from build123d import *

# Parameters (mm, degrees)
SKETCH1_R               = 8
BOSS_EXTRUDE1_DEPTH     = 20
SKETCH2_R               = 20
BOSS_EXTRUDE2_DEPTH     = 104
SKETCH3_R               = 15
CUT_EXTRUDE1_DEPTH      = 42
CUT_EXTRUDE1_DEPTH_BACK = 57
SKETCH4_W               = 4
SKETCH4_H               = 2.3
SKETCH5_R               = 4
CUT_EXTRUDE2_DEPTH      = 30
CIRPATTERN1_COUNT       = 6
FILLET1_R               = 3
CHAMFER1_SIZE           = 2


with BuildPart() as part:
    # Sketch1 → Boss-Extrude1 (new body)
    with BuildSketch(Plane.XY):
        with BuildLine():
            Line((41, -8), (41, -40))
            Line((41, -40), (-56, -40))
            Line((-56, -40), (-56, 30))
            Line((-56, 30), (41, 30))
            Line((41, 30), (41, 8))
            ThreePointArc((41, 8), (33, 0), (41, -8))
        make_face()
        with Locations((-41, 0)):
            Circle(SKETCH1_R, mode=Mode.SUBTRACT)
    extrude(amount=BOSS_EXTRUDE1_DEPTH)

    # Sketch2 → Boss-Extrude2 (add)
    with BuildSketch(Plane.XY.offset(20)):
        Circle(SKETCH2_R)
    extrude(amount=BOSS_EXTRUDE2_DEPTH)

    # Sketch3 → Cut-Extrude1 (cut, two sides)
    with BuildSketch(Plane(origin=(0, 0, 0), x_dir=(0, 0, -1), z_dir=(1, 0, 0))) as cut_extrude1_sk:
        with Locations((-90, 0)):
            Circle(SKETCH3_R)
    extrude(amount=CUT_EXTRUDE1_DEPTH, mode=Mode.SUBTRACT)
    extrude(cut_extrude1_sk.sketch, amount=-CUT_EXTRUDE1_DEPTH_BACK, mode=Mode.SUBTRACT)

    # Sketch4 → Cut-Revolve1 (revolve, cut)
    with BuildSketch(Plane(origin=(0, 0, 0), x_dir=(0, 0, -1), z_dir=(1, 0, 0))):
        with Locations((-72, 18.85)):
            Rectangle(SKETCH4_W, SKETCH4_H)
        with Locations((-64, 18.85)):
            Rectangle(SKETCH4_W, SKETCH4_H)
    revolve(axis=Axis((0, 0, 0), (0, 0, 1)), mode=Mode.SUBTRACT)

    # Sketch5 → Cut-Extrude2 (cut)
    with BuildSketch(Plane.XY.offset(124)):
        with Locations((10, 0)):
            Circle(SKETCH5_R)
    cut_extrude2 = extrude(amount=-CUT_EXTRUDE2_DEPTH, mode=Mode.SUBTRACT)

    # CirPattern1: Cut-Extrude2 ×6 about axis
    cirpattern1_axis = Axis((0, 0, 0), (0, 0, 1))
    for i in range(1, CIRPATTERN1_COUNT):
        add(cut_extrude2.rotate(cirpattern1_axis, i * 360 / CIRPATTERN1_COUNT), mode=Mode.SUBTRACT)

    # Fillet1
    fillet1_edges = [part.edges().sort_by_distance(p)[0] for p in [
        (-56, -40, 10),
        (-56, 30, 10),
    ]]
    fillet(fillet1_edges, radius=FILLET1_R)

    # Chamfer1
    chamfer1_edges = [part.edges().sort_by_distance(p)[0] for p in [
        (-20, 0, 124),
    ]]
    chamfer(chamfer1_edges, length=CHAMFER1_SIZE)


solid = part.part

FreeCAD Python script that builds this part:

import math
import FreeCAD as App
import Part
import Sketcher

V = App.Vector


def edges_at(feature, points):
    """Names of the edges that pass closest to the given points."""
    edges = feature.Shape.Edges
    near = lambda p: min(range(len(edges)), key=lambda i: edges[i].distToShape(Part.Vertex(*p))[0])
    return sorted({f"Edge{near(p) + 1}" for p in points})


def add_polygon(sketch, points):
    """Adds a closed chain of lines whose ends are joined by coincident constraints."""
    first, n = sketch.GeometryCount, len(points)
    for a, b in zip(points, points[1:] + points[:1]):
        sketch.addGeometry(Part.LineSegment(App.Vector(*a, 0), App.Vector(*b, 0)), False)
    for i in range(n):
        sketch.addConstraint(Sketcher.Constraint("Coincident", first + i, 2, first + (i + 1) % n, 1))

doc = App.newDocument("Part")
params = doc.addObject("Spreadsheet::Sheet", "Params")
for row, (alias, value) in enumerate([
    ("sketch1_diameter", "16 mm"),
    ("sketch1_width", "97 mm"),
    ("sketch1_height", "32 mm"),
    ("sketch1_height2", "22 mm"),
    ("pad1_length", "20 mm"),
    ("sketch2_diameter", "40 mm"),
    ("pad2_length", "104 mm"),
    ("sketch3_diameter", "30 mm"),
    ("sketch4_height", "4 mm"),
    ("sketch4_width", "2.3 mm"),
    ("groove_angle", "360 deg"),
    ("sketch5_diameter", "8 mm"),
    ("pocket2_length", "30 mm"),
    ("fillet_radius", "3 mm"),
    ("chamfer_size", "2 mm"),
], start=1):
    params.set(f"A{row}", alias)
    params.set(f"B{row}", "=" + value)
    params.setAlias(f"B{row}", alias)

body = doc.addObject("PartDesign::Body", "Body")

sketch1 = body.newObject("Sketcher::SketchObject", "Sketch")
sketch1.AttachmentSupport = (doc.getObject("XY_Plane"), [""])
sketch1.MapMode = "FlatFace"
sketch1.addGeometry([
    Part.LineSegment(V(41, -40, 0), V(41, -8, 0)),
    Part.ArcOfCircle(Part.Circle(V(41, 0, 0), V(0, 0, 1), 8), math.radians(90), math.radians(270)),
    Part.LineSegment(V(41, 8, 0), V(41, 30, 0)),
    Part.LineSegment(V(41, 30, 0), V(-56, 30, 0)),
    Part.LineSegment(V(-56, 30, 0), V(-56, -40, 0)),
    Part.LineSegment(V(-56, -40, 0), V(41, -40, 0)),
    Part.Circle(V(-41, 0, 0), V(0, 0, 1), 8),
], False)
sketch1.addConstraint([
    Sketcher.Constraint("Coincident", 0, 2, 1, 2),
    Sketcher.Constraint("Coincident", 1, 1, 2, 1),
    Sketcher.Constraint("Coincident", 2, 2, 3, 1),
    Sketcher.Constraint("Coincident", 3, 2, 4, 1),
    Sketcher.Constraint("Coincident", 4, 2, 5, 1),
    Sketcher.Constraint("Coincident", 5, 2, 0, 1),
    Sketcher.Constraint("Vertical", 0),
    Sketcher.Constraint("Vertical", 2),
    Sketcher.Constraint("Horizontal", 3),
    Sketcher.Constraint("Vertical", 4),
    Sketcher.Constraint("Horizontal", 5),
    Sketcher.Constraint("Equal", 1, 6),
    Sketcher.Constraint("Symmetric", 1, 3, 6, 3, -1, 1),
    Sketcher.Constraint("Symmetric", 0, 2, 1, 1, -1),
    Sketcher.Constraint("Vertical", 1, 3, 0, 2),
    Sketcher.Constraint("Diameter", 6, 16.0),
    Sketcher.Constraint("DistanceX", 3, 2, 3, 1, 97.0),
    Sketcher.Constraint("DistanceY", 0, 1, 0, 2, 32.0),
    Sketcher.Constraint("DistanceY", 2, 1, 2, 2, 22.0),
    Sketcher.Constraint("DistanceX", -1, 1, 1, 3, 41.0),
])
sketch1.setExpression("Constraints[15]", "Params.sketch1_diameter")
sketch1.setExpression("Constraints[16]", "Params.sketch1_width")
sketch1.setExpression("Constraints[17]", "Params.sketch1_height")
sketch1.setExpression("Constraints[18]", "Params.sketch1_height2")
pad1 = body.newObject("PartDesign::Pad", "Pad")
pad1.Profile = sketch1
pad1.setExpression("Length", "Params.pad1_length")

sketch2 = body.newObject("Sketcher::SketchObject", "Sketch001")
sketch2.AttachmentSupport = (doc.getObject("XY_Plane"), [""])
sketch2.MapMode = "FlatFace"
sketch2.AttachmentOffset = App.Placement(V(0, 0, 20), App.Rotation())
sketch2.addGeometry(Part.Circle(V(0, 0, 0), V(0, 0, 1), 20), False)
sketch2.addConstraint([
    Sketcher.Constraint("Coincident", 0, 3, -1, 1),
    Sketcher.Constraint("Diameter", 0, 40.0),
])
sketch2.setExpression("Constraints[1]", "Params.sketch2_diameter")
pad2 = body.newObject("PartDesign::Pad", "Pad001")
pad2.Profile = sketch2
pad2.setExpression("Length", "Params.pad2_length")

sketch3 = body.newObject("Sketcher::SketchObject", "Sketch002")
sketch3.AttachmentSupport = (doc.getObject("YZ_Plane"), [""])
sketch3.MapMode = "FlatFace"
sketch3.addGeometry(Part.Circle(V(0, 90, 0), V(0, 0, 1), 15), False)
sketch3.addConstraint([
    Sketcher.Constraint("PointOnObject", 0, 3, -2),
    Sketcher.Constraint("Diameter", 0, 30.0),
    Sketcher.Constraint("DistanceY", -1, 1, 0, 3, 90.0),
])
sketch3.setExpression("Constraints[1]", "Params.sketch3_diameter")
pocket1 = body.newObject("PartDesign::Pocket", "Pocket")
pocket1.Profile = sketch3
pocket1.Type = "ThroughAll"
pocket1.Midplane = True

sketch4 = body.newObject("Sketcher::SketchObject", "Sketch003")
sketch4.AttachmentSupport = (doc.getObject("YZ_Plane"), [""])
sketch4.MapMode = "FlatFace"
add_polygon(sketch4, [(20, 74), (17.7, 74), (17.7, 70), (20, 70)])
add_polygon(sketch4, [(20, 66), (17.7, 66), (17.7, 62), (20, 62)])
sketch4.addConstraint([
    Sketcher.Constraint("Horizontal", 0),
    Sketcher.Constraint("Vertical", 1),
    Sketcher.Constraint("Horizontal", 2),
    Sketcher.Constraint("Vertical", 3),
    Sketcher.Constraint("Horizontal", 4),
    Sketcher.Constraint("Vertical", 5),
    Sketcher.Constraint("Horizontal", 6),
    Sketcher.Constraint("Vertical", 7),
    Sketcher.Constraint("Vertical", 1, 2, 4, 2),
    Sketcher.Constraint("Vertical", 3, 2, 6, 2),
    Sketcher.Constraint("Equal", 3, 5),
    Sketcher.Constraint("DistanceY", 1, 2, 1, 1, 4.0),
    Sketcher.Constraint("DistanceX", 0, 2, 0, 1, 2.3),
    Sketcher.Constraint("DistanceY", -1, 1, 0, 2, 74.0),
    Sketcher.Constraint("DistanceX", -1, 1, 2, 2, 20.0),
    Sketcher.Constraint("DistanceY", -1, 1, 4, 2, 66.0),
])
sketch4.setExpression("Constraints[19]", "Params.sketch4_height")
sketch4.setExpression("Constraints[20]", "Params.sketch4_width")
groove = body.newObject("PartDesign::Groove", "Groove")
groove.Profile = sketch4
groove.ReferenceAxis = (sketch4, ["V_Axis"])
groove.setExpression("Angle", "Params.groove_angle")

sketch5 = body.newObject("Sketcher::SketchObject", "Sketch004")
sketch5.AttachmentSupport = (doc.getObject("XY_Plane"), [""])
sketch5.MapMode = "FlatFace"
sketch5.AttachmentOffset = App.Placement(V(0, 0, 124), App.Rotation())
sketch5.addGeometry(Part.Circle(V(10, 0, 0), V(0, 0, 1), 4), False)
sketch5.addConstraint([
    Sketcher.Constraint("PointOnObject", 0, 3, -1),
    Sketcher.Constraint("Diameter", 0, 8.0),
    Sketcher.Constraint("DistanceX", -1, 1, 0, 3, 10.0),
])
sketch5.setExpression("Constraints[1]", "Params.sketch5_diameter")
pocket2 = body.newObject("PartDesign::Pocket", "Pocket001")
pocket2.Profile = sketch5
pocket2.setExpression("Length", "Params.pocket2_length")
doc.recompute()

polarpattern = body.newObject("PartDesign::PolarPattern", "PolarPattern")
polarpattern.Originals = [pocket2]
polarpattern.Axis = (doc.getObject("Z_Axis"), [""])
polarpattern.Angle = 360
polarpattern.Occurrences = 6
body.Tip = polarpattern
doc.recompute()

fillet = body.newObject("PartDesign::Fillet", "Fillet")
fillet.Base = (polarpattern, edges_at(polarpattern, [(-56, -40, 10), (-56, 30, 10)]))
fillet.setExpression("Radius", "Params.fillet_radius")
doc.recompute()

chamfer = body.newObject("PartDesign::Chamfer", "Chamfer")
chamfer.Base = (fillet, edges_at(fillet, [(-20, 0, 124)]))
chamfer.setExpression("Size", "Params.chamfer_size")

doc.recompute()
